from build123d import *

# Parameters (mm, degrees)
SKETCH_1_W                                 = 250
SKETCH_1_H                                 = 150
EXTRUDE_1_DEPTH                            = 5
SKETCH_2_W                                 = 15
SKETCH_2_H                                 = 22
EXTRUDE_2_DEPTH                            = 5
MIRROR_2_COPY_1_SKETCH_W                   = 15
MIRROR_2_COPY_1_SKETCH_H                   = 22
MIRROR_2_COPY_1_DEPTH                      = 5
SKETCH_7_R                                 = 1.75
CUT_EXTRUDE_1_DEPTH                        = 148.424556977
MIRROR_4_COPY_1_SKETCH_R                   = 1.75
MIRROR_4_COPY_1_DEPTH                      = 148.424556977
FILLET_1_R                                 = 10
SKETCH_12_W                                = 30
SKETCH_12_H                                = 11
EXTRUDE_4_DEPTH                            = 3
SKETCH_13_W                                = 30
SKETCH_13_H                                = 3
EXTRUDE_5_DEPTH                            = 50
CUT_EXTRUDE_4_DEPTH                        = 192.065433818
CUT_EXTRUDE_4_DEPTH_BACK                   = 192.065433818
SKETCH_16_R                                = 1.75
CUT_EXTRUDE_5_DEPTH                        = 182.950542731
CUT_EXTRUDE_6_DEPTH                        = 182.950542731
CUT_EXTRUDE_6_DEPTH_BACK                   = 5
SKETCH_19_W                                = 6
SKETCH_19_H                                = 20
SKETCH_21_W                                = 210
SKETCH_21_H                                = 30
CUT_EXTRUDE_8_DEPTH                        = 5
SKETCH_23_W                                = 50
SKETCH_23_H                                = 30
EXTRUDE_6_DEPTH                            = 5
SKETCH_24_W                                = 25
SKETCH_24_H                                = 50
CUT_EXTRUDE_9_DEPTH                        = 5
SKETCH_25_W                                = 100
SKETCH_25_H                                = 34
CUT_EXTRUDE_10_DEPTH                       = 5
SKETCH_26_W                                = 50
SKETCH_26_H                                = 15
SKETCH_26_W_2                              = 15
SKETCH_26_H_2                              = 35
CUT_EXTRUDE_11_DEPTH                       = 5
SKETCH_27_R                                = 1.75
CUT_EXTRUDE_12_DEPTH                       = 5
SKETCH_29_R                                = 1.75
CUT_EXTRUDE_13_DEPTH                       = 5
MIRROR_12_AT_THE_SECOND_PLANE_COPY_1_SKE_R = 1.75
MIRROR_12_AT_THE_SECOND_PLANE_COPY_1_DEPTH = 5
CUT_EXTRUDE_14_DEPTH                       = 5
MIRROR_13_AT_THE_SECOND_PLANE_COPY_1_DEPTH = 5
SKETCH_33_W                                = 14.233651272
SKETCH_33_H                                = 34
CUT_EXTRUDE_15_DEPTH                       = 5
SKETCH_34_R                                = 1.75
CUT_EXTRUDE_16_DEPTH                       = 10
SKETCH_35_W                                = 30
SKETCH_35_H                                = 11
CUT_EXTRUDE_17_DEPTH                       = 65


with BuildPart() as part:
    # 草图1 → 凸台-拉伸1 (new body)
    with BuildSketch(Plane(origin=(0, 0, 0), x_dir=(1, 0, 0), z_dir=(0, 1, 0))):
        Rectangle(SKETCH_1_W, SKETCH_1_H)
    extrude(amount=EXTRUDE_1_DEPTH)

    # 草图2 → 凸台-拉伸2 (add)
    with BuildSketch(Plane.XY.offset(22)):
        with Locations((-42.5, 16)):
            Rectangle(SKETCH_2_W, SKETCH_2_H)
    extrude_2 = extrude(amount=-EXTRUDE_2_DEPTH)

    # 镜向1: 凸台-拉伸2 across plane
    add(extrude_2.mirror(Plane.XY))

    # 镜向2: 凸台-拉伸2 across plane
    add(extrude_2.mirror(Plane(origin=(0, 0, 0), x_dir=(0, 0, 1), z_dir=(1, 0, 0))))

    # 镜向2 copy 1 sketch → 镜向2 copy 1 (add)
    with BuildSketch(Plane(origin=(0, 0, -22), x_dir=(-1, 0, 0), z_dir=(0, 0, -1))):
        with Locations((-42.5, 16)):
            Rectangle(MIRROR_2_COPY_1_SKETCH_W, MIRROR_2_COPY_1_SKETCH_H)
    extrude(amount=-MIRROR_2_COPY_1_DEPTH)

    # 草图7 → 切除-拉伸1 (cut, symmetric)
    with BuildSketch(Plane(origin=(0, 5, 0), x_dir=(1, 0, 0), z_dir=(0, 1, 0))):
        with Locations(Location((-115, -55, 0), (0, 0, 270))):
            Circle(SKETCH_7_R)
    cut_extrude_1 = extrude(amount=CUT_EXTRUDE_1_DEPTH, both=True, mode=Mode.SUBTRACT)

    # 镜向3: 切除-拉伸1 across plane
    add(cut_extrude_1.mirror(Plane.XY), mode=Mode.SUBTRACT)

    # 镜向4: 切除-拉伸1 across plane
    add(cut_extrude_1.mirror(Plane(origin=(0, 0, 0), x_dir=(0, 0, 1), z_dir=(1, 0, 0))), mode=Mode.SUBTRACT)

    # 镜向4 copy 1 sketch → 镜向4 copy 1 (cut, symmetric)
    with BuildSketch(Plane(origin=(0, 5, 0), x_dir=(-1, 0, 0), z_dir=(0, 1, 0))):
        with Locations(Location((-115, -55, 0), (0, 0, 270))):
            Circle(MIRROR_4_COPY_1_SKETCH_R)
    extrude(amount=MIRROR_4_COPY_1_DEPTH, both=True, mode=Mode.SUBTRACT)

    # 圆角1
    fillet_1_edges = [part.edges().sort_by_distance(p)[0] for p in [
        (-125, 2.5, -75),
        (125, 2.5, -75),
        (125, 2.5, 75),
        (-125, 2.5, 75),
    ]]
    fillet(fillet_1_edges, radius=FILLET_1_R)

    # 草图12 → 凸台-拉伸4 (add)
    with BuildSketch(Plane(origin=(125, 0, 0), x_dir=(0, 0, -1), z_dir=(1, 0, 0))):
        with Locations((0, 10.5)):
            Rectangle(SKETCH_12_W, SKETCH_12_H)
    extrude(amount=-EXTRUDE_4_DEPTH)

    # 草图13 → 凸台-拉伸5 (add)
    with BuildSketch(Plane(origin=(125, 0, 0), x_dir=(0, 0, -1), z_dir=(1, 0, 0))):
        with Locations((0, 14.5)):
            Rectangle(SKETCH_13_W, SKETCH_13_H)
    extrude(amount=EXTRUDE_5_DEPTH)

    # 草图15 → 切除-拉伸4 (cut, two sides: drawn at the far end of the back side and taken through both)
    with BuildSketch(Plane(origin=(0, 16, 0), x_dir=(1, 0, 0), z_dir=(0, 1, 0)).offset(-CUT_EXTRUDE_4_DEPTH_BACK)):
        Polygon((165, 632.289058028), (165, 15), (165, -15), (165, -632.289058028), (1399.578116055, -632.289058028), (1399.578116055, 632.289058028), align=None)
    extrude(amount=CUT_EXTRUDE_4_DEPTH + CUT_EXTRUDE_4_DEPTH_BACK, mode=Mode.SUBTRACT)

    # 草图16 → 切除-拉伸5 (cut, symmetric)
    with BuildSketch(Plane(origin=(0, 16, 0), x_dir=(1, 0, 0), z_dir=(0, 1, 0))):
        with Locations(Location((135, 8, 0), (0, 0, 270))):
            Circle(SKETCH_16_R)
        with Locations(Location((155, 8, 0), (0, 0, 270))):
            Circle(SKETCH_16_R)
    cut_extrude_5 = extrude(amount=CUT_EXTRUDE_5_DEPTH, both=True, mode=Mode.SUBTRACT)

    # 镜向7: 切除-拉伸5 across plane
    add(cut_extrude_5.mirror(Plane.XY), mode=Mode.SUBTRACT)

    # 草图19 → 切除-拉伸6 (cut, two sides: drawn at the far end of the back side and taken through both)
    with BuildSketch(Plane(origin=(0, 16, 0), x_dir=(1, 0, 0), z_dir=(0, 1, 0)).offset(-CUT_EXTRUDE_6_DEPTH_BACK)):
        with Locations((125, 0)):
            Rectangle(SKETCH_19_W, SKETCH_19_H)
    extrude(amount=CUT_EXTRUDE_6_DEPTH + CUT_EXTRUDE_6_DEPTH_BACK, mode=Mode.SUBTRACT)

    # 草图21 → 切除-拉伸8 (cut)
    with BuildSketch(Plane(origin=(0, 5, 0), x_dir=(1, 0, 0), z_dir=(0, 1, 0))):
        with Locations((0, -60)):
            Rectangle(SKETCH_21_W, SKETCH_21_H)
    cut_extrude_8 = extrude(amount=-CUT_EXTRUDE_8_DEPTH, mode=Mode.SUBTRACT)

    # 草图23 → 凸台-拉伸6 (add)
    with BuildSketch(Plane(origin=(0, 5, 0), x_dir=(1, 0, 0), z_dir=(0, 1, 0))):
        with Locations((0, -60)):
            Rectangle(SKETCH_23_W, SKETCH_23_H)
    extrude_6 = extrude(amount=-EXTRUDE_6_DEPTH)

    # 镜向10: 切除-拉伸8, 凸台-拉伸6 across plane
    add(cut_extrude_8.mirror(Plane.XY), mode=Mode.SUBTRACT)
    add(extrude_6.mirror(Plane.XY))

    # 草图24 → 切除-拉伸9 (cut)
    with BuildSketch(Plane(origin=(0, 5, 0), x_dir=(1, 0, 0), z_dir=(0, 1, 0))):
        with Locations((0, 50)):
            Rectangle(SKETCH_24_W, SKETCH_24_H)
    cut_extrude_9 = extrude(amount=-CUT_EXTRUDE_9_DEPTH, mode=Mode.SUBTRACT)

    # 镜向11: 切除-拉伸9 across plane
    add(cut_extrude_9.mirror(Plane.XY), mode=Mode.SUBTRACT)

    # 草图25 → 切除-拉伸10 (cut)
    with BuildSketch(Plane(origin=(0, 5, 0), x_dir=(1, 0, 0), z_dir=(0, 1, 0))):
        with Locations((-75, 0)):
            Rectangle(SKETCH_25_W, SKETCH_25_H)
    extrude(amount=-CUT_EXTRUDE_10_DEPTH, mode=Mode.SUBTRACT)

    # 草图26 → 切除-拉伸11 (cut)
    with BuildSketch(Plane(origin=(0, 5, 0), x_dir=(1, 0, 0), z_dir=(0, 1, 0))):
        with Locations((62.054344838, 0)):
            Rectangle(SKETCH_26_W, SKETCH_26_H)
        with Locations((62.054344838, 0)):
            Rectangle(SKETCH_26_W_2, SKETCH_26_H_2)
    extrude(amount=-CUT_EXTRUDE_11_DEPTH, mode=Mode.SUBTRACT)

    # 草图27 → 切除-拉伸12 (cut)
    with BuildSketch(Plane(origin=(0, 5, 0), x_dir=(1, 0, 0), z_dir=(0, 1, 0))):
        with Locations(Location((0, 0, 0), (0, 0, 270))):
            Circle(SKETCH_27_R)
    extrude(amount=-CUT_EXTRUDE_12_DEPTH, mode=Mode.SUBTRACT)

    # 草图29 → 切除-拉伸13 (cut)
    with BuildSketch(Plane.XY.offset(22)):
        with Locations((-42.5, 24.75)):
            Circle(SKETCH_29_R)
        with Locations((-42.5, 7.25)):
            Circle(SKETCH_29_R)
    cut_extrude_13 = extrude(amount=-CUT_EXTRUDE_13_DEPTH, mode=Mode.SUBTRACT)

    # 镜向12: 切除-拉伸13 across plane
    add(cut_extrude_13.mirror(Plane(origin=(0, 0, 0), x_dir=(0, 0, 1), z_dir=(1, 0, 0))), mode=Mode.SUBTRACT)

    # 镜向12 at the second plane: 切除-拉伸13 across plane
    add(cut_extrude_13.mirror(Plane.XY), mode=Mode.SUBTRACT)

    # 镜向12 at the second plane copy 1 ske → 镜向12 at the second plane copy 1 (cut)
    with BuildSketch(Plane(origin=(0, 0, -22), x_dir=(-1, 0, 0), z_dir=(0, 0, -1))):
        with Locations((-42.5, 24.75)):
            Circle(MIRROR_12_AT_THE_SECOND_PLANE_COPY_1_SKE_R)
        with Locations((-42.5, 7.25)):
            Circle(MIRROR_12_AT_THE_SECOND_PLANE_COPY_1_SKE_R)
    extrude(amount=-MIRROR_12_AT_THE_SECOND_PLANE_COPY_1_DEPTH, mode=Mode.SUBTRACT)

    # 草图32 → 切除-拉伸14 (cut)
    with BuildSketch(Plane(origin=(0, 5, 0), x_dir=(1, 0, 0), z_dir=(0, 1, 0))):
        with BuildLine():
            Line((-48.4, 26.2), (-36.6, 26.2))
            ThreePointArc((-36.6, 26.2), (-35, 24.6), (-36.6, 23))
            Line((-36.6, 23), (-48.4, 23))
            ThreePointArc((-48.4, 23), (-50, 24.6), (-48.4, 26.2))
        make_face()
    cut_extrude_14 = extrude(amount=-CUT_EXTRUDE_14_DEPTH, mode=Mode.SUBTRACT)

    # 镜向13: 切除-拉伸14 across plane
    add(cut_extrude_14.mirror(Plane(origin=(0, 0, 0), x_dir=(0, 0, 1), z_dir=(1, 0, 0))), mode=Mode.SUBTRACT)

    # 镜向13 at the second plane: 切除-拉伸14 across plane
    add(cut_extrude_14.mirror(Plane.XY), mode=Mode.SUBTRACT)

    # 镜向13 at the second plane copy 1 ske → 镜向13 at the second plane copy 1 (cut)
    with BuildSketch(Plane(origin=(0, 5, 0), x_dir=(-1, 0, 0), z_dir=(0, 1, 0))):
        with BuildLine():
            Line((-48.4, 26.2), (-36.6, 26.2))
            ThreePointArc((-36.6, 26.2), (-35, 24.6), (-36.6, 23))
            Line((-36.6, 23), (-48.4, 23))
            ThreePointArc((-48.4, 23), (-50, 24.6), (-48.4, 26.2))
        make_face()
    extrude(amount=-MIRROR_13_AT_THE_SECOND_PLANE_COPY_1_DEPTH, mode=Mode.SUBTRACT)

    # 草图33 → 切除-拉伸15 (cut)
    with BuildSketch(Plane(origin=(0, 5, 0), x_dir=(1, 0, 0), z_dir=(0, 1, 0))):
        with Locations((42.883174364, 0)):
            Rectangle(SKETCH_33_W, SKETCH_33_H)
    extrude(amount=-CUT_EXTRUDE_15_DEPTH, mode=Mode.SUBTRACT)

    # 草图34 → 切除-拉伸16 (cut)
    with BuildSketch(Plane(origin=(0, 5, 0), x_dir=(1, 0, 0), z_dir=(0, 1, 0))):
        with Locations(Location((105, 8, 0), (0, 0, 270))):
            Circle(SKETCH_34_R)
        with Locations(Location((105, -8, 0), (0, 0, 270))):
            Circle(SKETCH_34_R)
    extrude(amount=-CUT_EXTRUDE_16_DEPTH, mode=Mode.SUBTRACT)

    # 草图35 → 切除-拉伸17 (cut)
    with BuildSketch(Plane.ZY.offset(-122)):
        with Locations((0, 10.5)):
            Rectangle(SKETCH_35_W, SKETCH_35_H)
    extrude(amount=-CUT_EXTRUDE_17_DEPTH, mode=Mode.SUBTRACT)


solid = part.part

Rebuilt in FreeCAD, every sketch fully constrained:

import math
import FreeCAD as App
import Part
import Sketcher


def edges_at(feature, points):
    """Names of the edges that pass closest to the given points."""
    edges = feature.Shape.Edges
    near = lambda p: min(range(len(edges)), key=lambda i: edges[i].distToShape(Part.Vertex(*p))[0])
    return sorted({f"Edge{near(p) + 1}" for p in points})

doc = App.newDocument("Part")
body = doc.addObject("PartDesign::Body", "Body")

# Sketch on XZ plane
sketch1 = doc.addObject("Sketcher::SketchObject", "Sketch")
body.addObject(sketch1)
sketch1.AttachmentSupport = (doc.XZ_Plane, [""])
sketch1.MapMode = "FlatFace"
sketch1.addGeometry([
    Part.LineSegment(App.Vector(-125, -75, 0), App.Vector(-125, 75, 0)),
    Part.LineSegment(App.Vector(-125, 75, 0), App.Vector(125, 75, 0)),
    Part.LineSegment(App.Vector(125, 75, 0), App.Vector(125, -75, 0)),
    Part.LineSegment(App.Vector(125, -75, 0), App.Vector(-125, -75, 0)),
], False)
sketch1.addConstraint([
    Sketcher.Constraint("Coincident", 0, 2, 1, 1),
    Sketcher.Constraint("Coincident", 1, 2, 2, 1),
    Sketcher.Constraint("Coincident", 2, 2, 3, 1),
    Sketcher.Constraint("Coincident", 3, 2, 0, 1),
    Sketcher.Constraint("Vertical", 0),
    Sketcher.Constraint("Horizontal", 1),
    Sketcher.Constraint("Vertical", 2),
    Sketcher.Constraint("Horizontal", 3),
    Sketcher.Constraint("Symmetric", 0, 2, 2, 2, -1, 1),
    Sketcher.Constraint("DistanceX", 1, 1, 1, 2, 250.0),
    Sketcher.Constraint("DistanceY", 0, 1, 0, 2, 150.0),
])
pad1 = doc.addObject("PartDesign::Pad", "Pad")
body.addObject(pad1)
pad1.Profile = sketch1
pad1.Length = 5
pad1.Reversed = True

# Sketch on XY plane
sketch2 = doc.addObject("Sketcher::SketchObject", "Sketch001")
body.addObject(sketch2)
sketch2.AttachmentSupport = (doc.XY_Plane, [""])
sketch2.MapMode = "FlatFace"
sketch2.AttachmentOffset = App.Placement(App.Vector(0, 0, 22), App.Rotation())
sketch2.addGeometry([
    Part.LineSegment(App.Vector(-50, 27, 0), App.Vector(-50, 5, 0)),
    Part.LineSegment(App.Vector(-50, 5, 0), App.Vector(-35, 5, 0)),
    Part.LineSegment(App.Vector(-35, 5, 0), App.Vector(-35, 27, 0)),
    Part.LineSegment(App.Vector(-35, 27, 0), App.Vector(-50, 27, 0)),
], False)
sketch2.addConstraint([
    Sketcher.Constraint("Coincident", 0, 2, 1, 1),
    Sketcher.Constraint("Coincident", 1, 2, 2, 1),
    Sketcher.Constraint("Coincident", 2, 2, 3, 1),
    Sketcher.Constraint("Coincident", 3, 2, 0, 1),
    Sketcher.Constraint("Vertical", 0),
    Sketcher.Constraint("Horizontal", 1),
    Sketcher.Constraint("Vertical", 2),
    Sketcher.Constraint("Horizontal", 3),
    Sketcher.Constraint("DistanceX", 1, 1, 1, 2, 15.0),
    Sketcher.Constraint("DistanceY", 0, 2, 0, 1, 22.0),
    Sketcher.Constraint("DistanceX", 0, 2, -1, 1, 50.0),
    Sketcher.Constraint("DistanceY", -1, 1, 0, 2, 5.0),
])
pad2 = doc.addObject("PartDesign::Pad", "Pad001")
body.addObject(pad2)
pad2.Profile = sketch2
pad2.Length = 5
pad2.Reversed = True
doc.recompute()

mirrored = doc.addObject("PartDesign::Mirrored", "Mirrored")
body.addObject(mirrored)
mirrored.Originals = [pad2]
mirrored.MirrorPlane = (doc.XY_Plane, [""])
body.Tip = mirrored
doc.recompute()

mirrored2 = doc.addObject("PartDesign::Mirrored", "Mirrored001")
body.addObject(mirrored2)
mirrored2.Originals = [pad2]
mirrored2.MirrorPlane = (doc.YZ_Plane, [""])
body.Tip = mirrored2

# Sketch on XY plane
sketch3 = doc.addObject("Sketcher::SketchObject", "Sketch002")
body.addObject(sketch3)
sketch3.AttachmentSupport = (doc.XY_Plane, [""])
sketch3.MapMode = "FlatFace"
sketch3.AttachmentOffset = App.Placement(App.Vector(0, 0, -22), App.Rotation())
sketch3.addGeometry([
    Part.LineSegment(App.Vector(50, 27, 0), App.Vector(50, 5, 0)),
    Part.LineSegment(App.Vector(50, 5, 0), App.Vector(35, 5, 0)),
    Part.LineSegment(App.Vector(35, 5, 0), App.Vector(35, 27, 0)),
    Part.LineSegment(App.Vector(35, 27, 0), App.Vector(50, 27, 0)),
], False)
sketch3.addConstraint([
    Sketcher.Constraint("Coincident", 0, 2, 1, 1),
    Sketcher.Constraint("Coincident", 1, 2, 2, 1),
    Sketcher.Constraint("Coincident", 2, 2, 3, 1),
    Sketcher.Constraint("Coincident", 3, 2, 0, 1),
    Sketcher.Constraint("Vertical", 0),
    Sketcher.Constraint("Horizontal", 1),
    Sketcher.Constraint("Vertical", 2),
    Sketcher.Constraint("Horizontal", 3),
    Sketcher.Constraint("DistanceX", 1, 2, 1, 1, 15.0),
    Sketcher.Constraint("DistanceY", 0, 2, 0, 1, 22.0),
    Sketcher.Constraint("DistanceX", -1, 1, 0, 2, 50.0),
    Sketcher.Constraint("DistanceY", -1, 1, 0, 2, 5.0),
])
pad3 = doc.addObject("PartDesign::Pad", "Pad002")
body.addObject(pad3)
pad3.Profile = sketch3
pad3.Length = 5

# Sketch on XZ plane
sketch4 = doc.addObject("Sketcher::SketchObject", "Sketch003")
body.addObject(sketch4)
sketch4.AttachmentSupport = (doc.XZ_Plane, [""])
sketch4.MapMode = "FlatFace"
sketch4.AttachmentOffset = App.Placement(App.Vector(0, 0, -5), App.Rotation())
sketch4.addGeometry(Part.Circle(App.Vector(-115, 55, 0), App.Vector(0, 0, 1), 1.8), False)
sketch4.addConstraint([
    Sketcher.Constraint("Diameter", 0, 3.5),
    Sketcher.Constraint("DistanceX", 0, 3, -1, 1, 115.0),
    Sketcher.Constraint("DistanceY", -1, 1, 0, 3, 55.0),
])
pocket1 = doc.addObject("PartDesign::Pocket", "Pocket")
body.addObject(pocket1)
pocket1.Profile = sketch4
pocket1.Length = 296.849114
pocket1.Midplane = True
doc.recompute()

mirrored3 = doc.addObject("PartDesign::Mirrored", "Mirrored002")
body.addObject(mirrored3)
mirrored3.Originals = [pocket1]
mirrored3.MirrorPlane = (doc.XY_Plane, [""])
body.Tip = mirrored3
doc.recompute()

mirrored4 = doc.addObject("PartDesign::Mirrored", "Mirrored003")
body.addObject(mirrored4)
mirrored4.Originals = [pocket1]
mirrored4.MirrorPlane = (doc.YZ_Plane, [""])
body.Tip = mirrored4

# Sketch on XZ plane
sketch5 = doc.addObject("Sketcher::SketchObject", "Sketch004")
body.addObject(sketch5)
sketch5.AttachmentSupport = (doc.XZ_Plane, [""])
sketch5.MapMode = "FlatFace"
sketch5.AttachmentOffset = App.Placement(App.Vector(0, 0, -5), App.Rotation())
sketch5.addGeometry(Part.Circle(App.Vector(115, -55, 0), App.Vector(0, 0, 1), 1.8), False)
sketch5.addConstraint([
    Sketcher.Constraint("Diameter", 0, 3.5),
    Sketcher.Constraint("DistanceX", -1, 1, 0, 3, 115.0),
    Sketcher.Constraint("DistanceY", 0, 3, -1, 1, 55.0),
])
pocket2 = doc.addObject("PartDesign::Pocket", "Pocket001")
body.addObject(pocket2)
pocket2.Profile = sketch5
pocket2.Length = 296.849114
pocket2.Midplane = True
doc.recompute()

fillet = doc.addObject("PartDesign::Fillet", "Fillet")
body.addObject(fillet)
fillet.Base = (pocket2, edges_at(pocket2, [
    (-125, 2.5, -75),
    (125, 2.5, -75),
    (125, 2.5, 75),
    (-125, 2.5, 75),
]))
fillet.Radius = 10

# Sketch on YZ plane
sketch6 = doc.addObject("Sketcher::SketchObject", "Sketch005")
body.addObject(sketch6)
sketch6.AttachmentSupport = (doc.YZ_Plane, [""])
sketch6.MapMode = "FlatFace"
sketch6.AttachmentOffset = App.Placement(App.Vector(0, 0, 125), App.Rotation())
sketch6.addGeometry([
    Part.LineSegment(App.Vector(16, 15, 0), App.Vector(5, 15, 0)),
    Part.LineSegment(App.Vector(5, 15, 0), App.Vector(5, -15, 0)),
    Part.LineSegment(App.Vector(5, -15, 0), App.Vector(16, -15, 0)),
    Part.LineSegment(App.Vector(16, -15, 0), App.Vector(16, 15, 0)),
], False)
sketch6.addConstraint([
    Sketcher.Constraint("Coincident", 0, 2, 1, 1),
    Sketcher.Constraint("Coincident", 1, 2, 2, 1),
    Sketcher.Constraint("Coincident", 2, 2, 3, 1),
    Sketcher.Constraint("Coincident", 3, 2, 0, 1),
    Sketcher.Constraint("Horizontal", 0),
    Sketcher.Constraint("Vertical", 1),
    Sketcher.Constraint("Horizontal", 2),
    Sketcher.Constraint("Vertical", 3),
    Sketcher.Constraint("DistanceX", 0, 2, 0, 1, 11.0),
    Sketcher.Constraint("DistanceY", 1, 2, 1, 1, 30.0),
    Sketcher.Constraint("DistanceX", -1, 1, 0, 2, 5.0),
    Sketcher.Constraint("DistanceY", -1, 1, 0, 2, 15.0),
])
pad4 = doc.addObject("PartDesign::Pad", "Pad003")
body.addObject(pad4)
pad4.Profile = sketch6
pad4.Length = 3
pad4.Reversed = True

# Sketch on YZ plane
sketch7 = doc.addObject("Sketcher::SketchObject", "Sketch006")
body.addObject(sketch7)
sketch7.AttachmentSupport = (doc.YZ_Plane, [""])
sketch7.MapMode = "FlatFace"
sketch7.AttachmentOffset = App.Placement(App.Vector(0, 0, 125), App.Rotation())
sketch7.addGeometry([
    Part.LineSegment(App.Vector(16, 15, 0), App.Vector(13, 15, 0)),
    Part.LineSegment(App.Vector(13, 15, 0), App.Vector(13, -15, 0)),
    Part.LineSegment(App.Vector(13, -15, 0), App.Vector(16, -15, 0)),
    Part.LineSegment(App.Vector(16, -15, 0), App.Vector(16, 15, 0)),
], False)
sketch7.addConstraint([
    Sketcher.Constraint("Coincident", 0, 2, 1, 1),
    Sketcher.Constraint("Coincident", 1, 2, 2, 1),
    Sketcher.Constraint("Coincident", 2, 2, 3, 1),
    Sketcher.Constraint("Coincident", 3, 2, 0, 1),
    Sketcher.Constraint("Horizontal", 0),
    Sketcher.Constraint("Vertical", 1),
    Sketcher.Constraint("Horizontal", 2),
    Sketcher.Constraint("Vertical", 3),
    Sketcher.Constraint("DistanceX", 0, 2, 0, 1, 3.0),
    Sketcher.Constraint("DistanceY", 1, 2, 1, 1, 30.0),
    Sketcher.Constraint("DistanceX", -1, 1, 0, 2, 13.0),
    Sketcher.Constraint("DistanceY", -1, 1, 0, 2, 15.0),
])
pad5 = doc.addObject("PartDesign::Pad", "Pad004")
body.addObject(pad5)
pad5.Profile = sketch7
pad5.Length = 50

# Sketch on XZ plane
sketch8 = doc.addObject("Sketcher::SketchObject", "Sketch007")
body.addObject(sketch8)
sketch8.AttachmentSupport = (doc.XZ_Plane, [""])
sketch8.MapMode = "FlatFace"
sketch8.AttachmentOffset = App.Placement(App.Vector(0, 0, -16), App.Rotation())
sketch8.addGeometry([
    Part.LineSegment(App.Vector(165, -632, 0), App.Vector(165, 632, 0)),
    Part.LineSegment(App.Vector(165, 632, 0), App.Vector(1400, 632, 0)),
    Part.LineSegment(App.Vector(1400, 632, 0), App.Vector(1400, -632, 0)),
    Part.LineSegment(App.Vector(1400, -632, 0), App.Vector(165, -632, 0)),
], False)
sketch8.addConstraint([
    Sketcher.Constraint("Coincident", 0, 2, 1, 1),
    Sketcher.Constraint("Coincident", 1, 2, 2, 1),
    Sketcher.Constraint("Coincident", 2, 2, 3, 1),
    Sketcher.Constraint("Coincident", 3, 2, 0, 1),
    Sketcher.Constraint("Vertical", 0),
    Sketcher.Constraint("Horizontal", 1),
    Sketcher.Constraint("Vertical", 2),
    Sketcher.Constraint("Horizontal", 3),
    Sketcher.Constraint("DistanceX", -1, 1, 0, 2, 165.0),
    Sketcher.Constraint("DistanceX", 1, 1, 1, 2, 1234.578116),
    Sketcher.Constraint("DistanceY", 0, 1, 0, 2, 1264.578116),
    Sketcher.Constraint("DistanceY", -1, 1, 0, 2, 632.289058),
])
pocket3 = doc.addObject("PartDesign::Pocket", "Pocket002")
body.addObject(pocket3)
pocket3.Profile = sketch8
pocket3.Type = "ThroughAll"
pocket3.Midplane = True

# Sketch on XZ plane
sketch9 = doc.addObject("Sketcher::SketchObject", "Sketch008")
body.addObject(sketch9)
sketch9.AttachmentSupport = (doc.XZ_Plane, [""])
sketch9.MapMode = "FlatFace"
sketch9.AttachmentOffset = App.Placement(App.Vector(0, 0, -16), App.Rotation())
sketch9.addGeometry([
    Part.Circle(App.Vector(135, -8, 0), App.Vector(0, 0, 1), 1.8),
    Part.Circle(App.Vector(155, -8, 0), App.Vector(0, 0, 1), 1.8),
], False)
sketch9.addConstraint([
    Sketcher.Constraint("Equal", 0, 1),
    Sketcher.Constraint("Horizontal", 0, 3, 1, 3),
    Sketcher.Constraint("Diameter", 0, 3.5),
    Sketcher.Constraint("DistanceX", -1, 1, 0, 3, 135.0),
    Sketcher.Constraint("DistanceY", 0, 3, -1, 1, 8.0),
    Sketcher.Constraint("DistanceX", -1, 1, 1, 3, 155.0),
])
pocket4 = doc.addObject("PartDesign::Pocket", "Pocket003")
body.addObject(pocket4)
pocket4.Profile = sketch9
pocket4.Length = 365.901085
pocket4.Midplane = True
doc.recompute()

mirrored5 = doc.addObject("PartDesign::Mirrored", "Mirrored004")
body.addObject(mirrored5)
mirrored5.Originals = [pocket4]
mirrored5.MirrorPlane = (doc.XY_Plane, [""])
body.Tip = mirrored5

# Sketch on XZ plane
sketch10 = doc.addObject("Sketcher::SketchObject", "Sketch009")
body.addObject(sketch10)
sketch10.AttachmentSupport = (doc.XZ_Plane, [""])
sketch10.MapMode = "FlatFace"
sketch10.AttachmentOffset = App.Placement(App.Vector(0, 0, -16), App.Rotation())
sketch10.addGeometry([
    Part.LineSegment(App.Vector(122, -10, 0), App.Vector(122, 10, 0)),
    Part.LineSegment(App.Vector(122, 10, 0), App.Vector(128, 10, 0)),
    Part.LineSegment(App.Vector(128, 10, 0), App.Vector(128, -10, 0)),
    Part.LineSegment(App.Vector(128, -10, 0), App.Vector(122, -10, 0)),
], False)
sketch10.addConstraint([
    Sketcher.Constraint("Coincident", 0, 2, 1, 1),
    Sketcher.Constraint("Coincident", 1, 2, 2, 1),
    Sketcher.Constraint("Coincident", 2, 2, 3, 1),
    Sketcher.Constraint("Coincident", 3, 2, 0, 1),
    Sketcher.Constraint("Vertical", 0),
    Sketcher.Constraint("Horizontal", 1),
    Sketcher.Constraint("Vertical", 2),
    Sketcher.Constraint("Horizontal", 3),
    Sketcher.Constraint("DistanceX", 1, 1, 1, 2, 6.0),
    Sketcher.Constraint("DistanceY", 0, 1, 0, 2, 20.0),
    Sketcher.Constraint("DistanceX", -1, 1, 0, 2, 122.0),
    Sketcher.Constraint("DistanceY", -1, 1, 0, 2, 10.0),
])
pocket5 = doc.addObject("PartDesign::Pocket", "Pocket004")
body.addObject(pocket5)
pocket5.Profile = sketch10
pocket5.Type = "TwoLengths"
pocket5.Length = 182.950543
pocket5.Length2 = 5

# Sketch on XZ plane
sketch11 = doc.addObject("Sketcher::SketchObject", "Sketch010")
body.addObject(sketch11)
sketch11.AttachmentSupport = (doc.XZ_Plane, [""])
sketch11.MapMode = "FlatFace"
sketch11.AttachmentOffset = App.Placement(App.Vector(0, 0, -5), App.Rotation())
sketch11.addGeometry([
    Part.LineSegment(App.Vector(-105, 45, 0), App.Vector(-105, 75, 0)),
    Part.LineSegment(App.Vector(-105, 75, 0), App.Vector(105, 75, 0)),
    Part.LineSegment(App.Vector(105, 75, 0), App.Vector(105, 45, 0)),
    Part.LineSegment(App.Vector(105, 45, 0), App.Vector(-105, 45, 0)),
], False)
sketch11.addConstraint([
    Sketcher.Constraint("Coincident", 0, 2, 1, 1),
    Sketcher.Constraint("Coincident", 1, 2, 2, 1),
    Sketcher.Constraint("Coincident", 2, 2, 3, 1),
    Sketcher.Constraint("Coincident", 3, 2, 0, 1),
    Sketcher.Constraint("Vertical", 0),
    Sketcher.Constraint("Horizontal", 1),
    Sketcher.Constraint("Vertical", 2),
    Sketcher.Constraint("Horizontal", 3),
    Sketcher.Constraint("DistanceX", 1, 1, 1, 2, 210.0),
    Sketcher.Constraint("DistanceY", 0, 1, 0, 2, 30.0),
    Sketcher.Constraint("DistanceX", 0, 2, -1, 1, 105.0),
    Sketcher.Constraint("DistanceY", -1, 1, 0, 2, 75.0),
])
pocket6 = doc.addObject("PartDesign::Pocket", "Pocket005")
body.addObject(pocket6)
pocket6.Profile = sketch11
pocket6.Length = 5
pocket6.Reversed = True

# Sketch on XZ plane
sketch12 = doc.addObject("Sketcher::SketchObject", "Sketch011")
body.addObject(sketch12)
sketch12.AttachmentSupport = (doc.XZ_Plane, [""])
sketch12.MapMode = "FlatFace"
sketch12.AttachmentOffset = App.Placement(App.Vector(0, 0, -5), App.Rotation())
sketch12.addGeometry([
    Part.LineSegment(App.Vector(-25, 45, 0), App.Vector(-25, 75, 0)),
    Part.LineSegment(App.Vector(-25, 75, 0), App.Vector(25, 75, 0)),
    Part.LineSegment(App.Vector(25, 75, 0), App.Vector(25, 45, 0)),
    Part.LineSegment(App.Vector(25, 45, 0), App.Vector(-25, 45, 0)),
], False)
sketch12.addConstraint([
    Sketcher.Constraint("Coincident", 0, 2, 1, 1),
    Sketcher.Constraint("Coincident", 1, 2, 2, 1),
    Sketcher.Constraint("Coincident", 2, 2, 3, 1),
    Sketcher.Constraint("Coincident", 3, 2, 0, 1),
    Sketcher.Constraint("Vertical", 0),
    Sketcher.Constraint("Horizontal", 1),
    Sketcher.Constraint("Vertical", 2),
    Sketcher.Constraint("Horizontal", 3),
    Sketcher.Constraint("DistanceX", 1, 1, 1, 2, 50.0),
    Sketcher.Constraint("DistanceY", 0, 1, 0, 2, 30.0),
    Sketcher.Constraint("DistanceX", 0, 2, -1, 1, 25.0),
    Sketcher.Constraint("DistanceY", -1, 1, 0, 2, 75.0),
])
pad6 = doc.addObject("PartDesign::Pad", "Pad005")
body.addObject(pad6)
pad6.Profile = sketch12
pad6.Length = 5
doc.recompute()

mirrored6 = doc.addObject("PartDesign::Mirrored", "Mirrored005")
body.addObject(mirrored6)
mirrored6.Originals = [pocket6, pad6]
mirrored6.MirrorPlane = (doc.XY_Plane, [""])
body.Tip = mirrored6

# Sketch on XZ plane
sketch13 = doc.addObject("Sketcher::SketchObject", "Sketch012")
body.addObject(sketch13)
sketch13.AttachmentSupport = (doc.XZ_Plane, [""])
sketch13.MapMode = "FlatFace"
sketch13.AttachmentOffset = App.Placement(App.Vector(0, 0, -5), App.Rotation())
sketch13.addGeometry([
    Part.LineSegment(App.Vector(-12, -75, 0), App.Vector(-12, -25, 0)),
    Part.LineSegment(App.Vector(-12, -25, 0), App.Vector(12, -25, 0)),
    Part.LineSegment(App.Vector(12, -25, 0), App.Vector(12, -75, 0)),
    Part.LineSegment(App.Vector(12, -75, 0), App.Vector(-12, -75, 0)),
], False)
sketch13.addConstraint([
    Sketcher.Constraint("Coincident", 0, 2, 1, 1),
    Sketcher.Constraint("Coincident", 1, 2, 2, 1),
    Sketcher.Constraint("Coincident", 2, 2, 3, 1),
    Sketcher.Constraint("Coincident", 3, 2, 0, 1),
    Sketcher.Constraint("Vertical", 0),
    Sketcher.Constraint("Horizontal", 1),
    Sketcher.Constraint("Vertical", 2),
    Sketcher.Constraint("Horizontal", 3),
    Sketcher.Constraint("DistanceX", 1, 1, 1, 2, 25.0),
    Sketcher.Constraint("DistanceY", 0, 1, 0, 2, 50.0),
    Sketcher.Constraint("DistanceY", 0, 2, -1, 1, 25.0),
    Sketcher.Constraint("DistanceX", 0, 2, -1, 1, 12.5),
])
pocket7 = doc.addObject("PartDesign::Pocket", "Pocket006")
body.addObject(pocket7)
pocket7.Profile = sketch13
pocket7.Length = 5
pocket7.Reversed = True
doc.recompute()

mirrored7 = doc.addObject("PartDesign::Mirrored", "Mirrored006")
body.addObject(mirrored7)
mirrored7.Originals = [pocket7]
mirrored7.MirrorPlane = (doc.XY_Plane, [""])
body.Tip = mirrored7

# Sketch on XZ plane
sketch14 = doc.addObject("Sketcher::SketchObject", "Sketch013")
body.addObject(sketch14)
sketch14.AttachmentSupport = (doc.XZ_Plane, [""])
sketch14.MapMode = "FlatFace"
sketch14.AttachmentOffset = App.Placement(App.Vector(0, 0, -5), App.Rotation())
sketch14.addGeometry([
    Part.LineSegment(App.Vector(-125, -17, 0), App.Vector(-125, 17, 0)),
    Part.LineSegment(App.Vector(-125, 17, 0), App.Vector(-25, 17, 0)),
    Part.LineSegment(App.Vector(-25, 17, 0), App.Vector(-25, -17, 0)),
    Part.LineSegment(App.Vector(-25, -17, 0), App.Vector(-125, -17, 0)),
], False)
sketch14.addConstraint([
    Sketcher.Constraint("Coincident", 0, 2, 1, 1),
    Sketcher.Constraint("Coincident", 1, 2, 2, 1),
    Sketcher.Constraint("Coincident", 2, 2, 3, 1),
    Sketcher.Constraint("Coincident", 3, 2, 0, 1),
    Sketcher.Constraint("Vertical", 0),
    Sketcher.Constraint("Horizontal", 1),
    Sketcher.Constraint("Vertical", 2),
    Sketcher.Constraint("Horizontal", 3),
    Sketcher.Constraint("DistanceX", 1, 1, 1, 2, 100.0),
    Sketcher.Constraint("DistanceY", 0, 1, 0, 2, 34.0),
    Sketcher.Constraint("DistanceX", 0, 2, -1, 1, 125.0),
    Sketcher.Constraint("DistanceY", -1, 1, 0, 2, 17.0),
])
pocket8 = doc.addObject("PartDesign::Pocket", "Pocket007")
body.addObject(pocket8)
pocket8.Profile = sketch14
pocket8.Length = 5
pocket8.Reversed = True

# Sketch on XZ plane
sketch15 = doc.addObject("Sketcher::SketchObject", "Sketch014")
body.addObject(sketch15)
sketch15.AttachmentSupport = (doc.XZ_Plane, [""])
sketch15.MapMode = "FlatFace"
sketch15.AttachmentOffset = App.Placement(App.Vector(0, 0, -5), App.Rotation())
sketch15.addGeometry([
    Part.LineSegment(App.Vector(37, -8, 0), App.Vector(37, 8, 0)),  # 0
    Part.LineSegment(App.Vector(37, 8, 0), App.Vector(55, 8, 0)),  # 1
    Part.LineSegment(App.Vector(55, 8, 0), App.Vector(55, 18, 0)),  # 2
    Part.LineSegment(App.Vector(55, 18, 0), App.Vector(70, 18, 0)),  # 3
    Part.LineSegment(App.Vector(70, 18, 0), App.Vector(70, 8, 0)),  # 4
    Part.LineSegment(App.Vector(70, 8, 0), App.Vector(87, 8, 0)),  # 5
    Part.LineSegment(App.Vector(87, 8, 0), App.Vector(87, -8, 0)),  # 6
    Part.LineSegment(App.Vector(87, -8, 0), App.Vector(70, -8, 0)),  # 7
    Part.LineSegment(App.Vector(70, -8, 0), App.Vector(70, -18, 0)),  # 8
    Part.LineSegment(App.Vector(70, -18, 0), App.Vector(55, -18, 0)),  # 9
    Part.LineSegment(App.Vector(55, -18, 0), App.Vector(55, -8, 0)),  # 10
    Part.LineSegment(App.Vector(55, -8, 0), App.Vector(37, -8, 0)),  # 11
], False)
sketch15.addConstraint([
    Sketcher.Constraint("Coincident", 0, 2, 1, 1),
    Sketcher.Constraint("Coincident", 1, 2, 2, 1),
    Sketcher.Constraint("Coincident", 2, 2, 3, 1),
    Sketcher.Constraint("Coincident", 3, 2, 4, 1),
    Sketcher.Constraint("Coincident", 4, 2, 5, 1),
    Sketcher.Constraint("Coincident", 5, 2, 6, 1),
    Sketcher.Constraint("Coincident", 6, 2, 7, 1),
    Sketcher.Constraint("Coincident", 7, 2, 8, 1),
    Sketcher.Constraint("Coincident", 8, 2, 9, 1),
    Sketcher.Constraint("Coincident", 9, 2, 10, 1),
    Sketcher.Constraint("Coincident", 10, 2, 11, 1),
    Sketcher.Constraint("Coincident", 11, 2, 0, 1),
    Sketcher.Constraint("Vertical", 0),
    Sketcher.Constraint("Horizontal", 1),
    Sketcher.Constraint("Vertical", 2),
    Sketcher.Constraint("Horizontal", 3),
    Sketcher.Constraint("Vertical", 4),
    Sketcher.Constraint("Horizontal", 5),
    Sketcher.Constraint("Vertical", 6),
    Sketcher.Constraint("Horizontal", 7),
    Sketcher.Constraint("Vertical", 8),
    Sketcher.Constraint("Horizontal", 9),
    Sketcher.Constraint("Vertical", 10),
    Sketcher.Constraint("Horizontal", 11),
    Sketcher.Constraint("Symmetric", 4, 2, 7, 2, -1),
    Sketcher.Constraint("Symmetric", 2, 2, 9, 2, -1),
    Sketcher.Constraint("Horizontal", 1, 2, 4, 2),
    Sketcher.Constraint("Horizontal", 7, 2, 10, 2),
    Sketcher.Constraint("Equal", 1, 5),
    Sketcher.Constraint("Equal", 9, 0),
    Sketcher.Constraint("DistanceX", 3, 1, 3, 2, 15.0),
    Sketcher.Constraint("DistanceY", 2, 1, 2, 2, 10.0),
    Sketcher.Constraint("DistanceX", 1, 1, 1, 2, 17.5),
    Sketcher.Constraint("DistanceX", -1, 1, 0, 2, 37.054345),
])
pocket9 = doc.addObject("PartDesign::Pocket", "Pocket008")
body.addObject(pocket9)
pocket9.Profile = sketch15
pocket9.Length = 5
pocket9.Reversed = True

# Sketch on XZ plane
sketch16 = doc.addObject("Sketcher::SketchObject", "Sketch015")
body.addObject(sketch16)
sketch16.AttachmentSupport = (doc.XZ_Plane, [""])
sketch16.MapMode = "FlatFace"
sketch16.AttachmentOffset = App.Placement(App.Vector(0, 0, -5), App.Rotation())
sketch16.addGeometry(Part.Circle(App.Vector(0, 0, 0), App.Vector(0, 0, 1), 1.8), False)
sketch16.addConstraint([
    Sketcher.Constraint("Coincident", 0, 3, -1, 1),
    Sketcher.Constraint("Diameter", 0, 3.5),
])
pocket10 = doc.addObject("PartDesign::Pocket", "Pocket009")
body.addObject(pocket10)
pocket10.Profile = sketch16
pocket10.Length = 5
pocket10.Reversed = True

# Sketch on XY plane
sketch17 = doc.addObject("Sketcher::SketchObject", "Sketch016")
body.addObject(sketch17)
sketch17.AttachmentSupport = (doc.XY_Plane, [""])
sketch17.MapMode = "FlatFace"
sketch17.AttachmentOffset = App.Placement(App.Vector(0, 0, 22), App.Rotation())
sketch17.addGeometry([
    Part.Circle(App.Vector(-42.5, 24.8, 0), App.Vector(0, 0, 1), 1.8),
    Part.Circle(App.Vector(-42.5, 7.2, 0), App.Vector(0, 0, 1), 1.8),
], False)
sketch17.addConstraint([
    Sketcher.Constraint("Equal", 0, 1),
    Sketcher.Constraint("Vertical", 0, 3, 1, 3),
    Sketcher.Constraint("Diameter", 0, 3.5),
    Sketcher.Constraint("DistanceX", 0, 3, -1, 1, 42.5),
    Sketcher.Constraint("DistanceY", 1, 3, 0, 3, 17.5),
    Sketcher.Constraint("DistanceY", -1, 1, 0, 3, 24.75),
])
pocket11 = doc.addObject("PartDesign::Pocket", "Pocket010")
body.addObject(pocket11)
pocket11.Profile = sketch17
pocket11.Length = 5
doc.recompute()

mirrored8 = doc.addObject("PartDesign::Mirrored", "Mirrored007")
body.addObject(mirrored8)
mirrored8.Originals = [pocket11]
mirrored8.MirrorPlane = (doc.YZ_Plane, [""])
body.Tip = mirrored8
doc.recompute()

mirrored9 = doc.addObject("PartDesign::Mirrored", "Mirrored008")
body.addObject(mirrored9)
mirrored9.Originals = [pocket11]
mirrored9.MirrorPlane = (doc.XY_Plane, [""])
body.Tip = mirrored9

# Sketch on XY plane
sketch18 = doc.addObject("Sketcher::SketchObject", "Sketch017")
body.addObject(sketch18)
sketch18.AttachmentSupport = (doc.XY_Plane, [""])
sketch18.MapMode = "FlatFace"
sketch18.AttachmentOffset = App.Placement(App.Vector(0, 0, -22), App.Rotation())
sketch18.addGeometry([
    Part.Circle(App.Vector(42.5, 24.8, 0), App.Vector(0, 0, 1), 1.8),
    Part.Circle(App.Vector(42.5, 7.2, 0), App.Vector(0, 0, 1), 1.8),
], False)
sketch18.addConstraint([
    Sketcher.Constraint("Equal", 0, 1),
    Sketcher.Constraint("Vertical", 0, 3, 1, 3),
    Sketcher.Constraint("Diameter", 0, 3.5),
    Sketcher.Constraint("DistanceX", -1, 1, 0, 3, 42.5),
    Sketcher.Constraint("DistanceY", 1, 3, 0, 3, 17.5),
    Sketcher.Constraint("DistanceY", -1, 1, 0, 3, 24.75),
])
pocket12 = doc.addObject("PartDesign::Pocket", "Pocket011")
body.addObject(pocket12)
pocket12.Profile = sketch18
pocket12.Length = 5
pocket12.Reversed = True

# Sketch on XZ plane
sketch19 = doc.addObject("Sketcher::SketchObject", "Sketch018")
body.addObject(sketch19)
sketch19.AttachmentSupport = (doc.XZ_Plane, [""])
sketch19.MapMode = "FlatFace"
sketch19.AttachmentOffset = App.Placement(App.Vector(0, 0, -5), App.Rotation())
sketch19.addGeometry([
    Part.LineSegment(App.Vector(-36.6, -26.2, 0), App.Vector(-48.4, -26.2, 0)),
    Part.ArcOfCircle(Part.Circle(App.Vector(-48.4, -24.6, 0), App.Vector(0, 0, 1), 1.6), math.radians(90), math.radians(270)),
    Part.LineSegment(App.Vector(-48.4, -23, 0), App.Vector(-36.6, -23, 0)),
    Part.ArcOfCircle(Part.Circle(App.Vector(-36.6, -24.6, 0), App.Vector(0, 0, 1), 1.6), math.radians(-90), math.radians(90)),
], False)
sketch19.addConstraint([
    Sketcher.Constraint("Tangent", 0, 2, 1, 2),
    Sketcher.Constraint("Tangent", 1, 1, 2, 1),
    Sketcher.Constraint("Tangent", 2, 2, 3, 2),
    Sketcher.Constraint("Tangent", 3, 1, 0, 1),
    Sketcher.Constraint("Horizontal", 0),
    Sketcher.Constraint("Horizontal", 2),
    Sketcher.Constraint("Radius", 1, 1.6),
    Sketcher.Constraint("DistanceX", 0, 2, 0, 1, 11.8),
    Sketcher.Constraint("DistanceY", 1, 1, -1, 1, 23.0),
    Sketcher.Constraint("DistanceX", 1, 3, -1, 1, 48.4),
])
pocket13 = doc.addObject("PartDesign::Pocket", "Pocket012")
body.addObject(pocket13)
pocket13.Profile = sketch19
pocket13.Length = 5
pocket13.Reversed = True
doc.recompute()

mirrored10 = doc.addObject("PartDesign::Mirrored", "Mirrored009")
body.addObject(mirrored10)
mirrored10.Originals = [pocket13]
mirrored10.MirrorPlane = (doc.YZ_Plane, [""])
body.Tip = mirrored10
doc.recompute()

mirrored11 = doc.addObject("PartDesign::Mirrored", "Mirrored010")
body.addObject(mirrored11)
mirrored11.Originals = [pocket13]
mirrored11.MirrorPlane = (doc.XY_Plane, [""])
body.Tip = mirrored11

# Sketch on XZ plane
sketch20 = doc.addObject("Sketcher::SketchObject", "Sketch019")
body.addObject(sketch20)
sketch20.AttachmentSupport = (doc.XZ_Plane, [""])
sketch20.MapMode = "FlatFace"
sketch20.AttachmentOffset = App.Placement(App.Vector(0, 0, -5), App.Rotation())
sketch20.addGeometry([
    Part.LineSegment(App.Vector(36.6, 26.2, 0), App.Vector(48.4, 26.2, 0)),
    Part.ArcOfCircle(Part.Circle(App.Vector(48.4, 24.6, 0), App.Vector(0, 0, 1), 1.6), math.radians(-90), math.radians(90)),
    Part.LineSegment(App.Vector(48.4, 23, 0), App.Vector(36.6, 23, 0)),
    Part.ArcOfCircle(Part.Circle(App.Vector(36.6, 24.6, 0), App.Vector(0, 0, 1), 1.6), math.radians(90), math.radians(270)),
], False)
sketch20.addConstraint([
    Sketcher.Constraint("Tangent", 0, 2, 1, 2),
    Sketcher.Constraint("Tangent", 1, 1, 2, 1),
    Sketcher.Constraint("Tangent", 2, 2, 3, 2),
    Sketcher.Constraint("Tangent", 3, 1, 0, 1),
    Sketcher.Constraint("Horizontal", 0),
    Sketcher.Constraint("Horizontal", 2),
    Sketcher.Constraint("Radius", 1, 1.6),
    Sketcher.Constraint("DistanceX", 0, 1, 0, 2, 11.8),
    Sketcher.Constraint("DistanceY", -1, 1, 1, 1, 23.0),
    Sketcher.Constraint("DistanceX", -1, 1, 1, 3, 48.4),
])
pocket14 = doc.addObject("PartDesign::Pocket", "Pocket013")
body.addObject(pocket14)
pocket14.Profile = sketch20
pocket14.Length = 5
pocket14.Reversed = True

# Sketch on XZ plane
sketch21 = doc.addObject("Sketcher::SketchObject", "Sketch020")
body.addObject(sketch21)
sketch21.AttachmentSupport = (doc.XZ_Plane, [""])
sketch21.MapMode = "FlatFace"
sketch21.AttachmentOffset = App.Placement(App.Vector(0, 0, -5), App.Rotation())
sketch21.addGeometry([
    Part.LineSegment(App.Vector(36, -17, 0), App.Vector(36, 17, 0)),
    Part.LineSegment(App.Vector(36, 17, 0), App.Vector(50, 17, 0)),
    Part.LineSegment(App.Vector(50, 17, 0), App.Vector(50, -17, 0)),
    Part.LineSegment(App.Vector(50, -17, 0), App.Vector(36, -17, 0)),
], False)
sketch21.addConstraint([
    Sketcher.Constraint("Coincident", 0, 2, 1, 1),
    Sketcher.Constraint("Coincident", 1, 2, 2, 1),
    Sketcher.Constraint("Coincident", 2, 2, 3, 1),
    Sketcher.Constraint("Coincident", 3, 2, 0, 1),
    Sketcher.Constraint("Vertical", 0),
    Sketcher.Constraint("Horizontal", 1),
    Sketcher.Constraint("Vertical", 2),
    Sketcher.Constraint("Horizontal", 3),
    Sketcher.Constraint("DistanceY", 0, 1, 0, 2, 34.0),
    Sketcher.Constraint("DistanceY", -1, 1, 0, 2, 17.0),
    Sketcher.Constraint("DistanceX", -1, 1, 1, 2, 50.0),
    Sketcher.Constraint("DistanceX", 1, 1, 1, 2, 14.233651),
])
pocket15 = doc.addObject("PartDesign::Pocket", "Pocket014")
body.addObject(pocket15)
pocket15.Profile = sketch21
pocket15.Length = 5
pocket15.Reversed = True

# Sketch on XZ plane
sketch22 = doc.addObject("Sketcher::SketchObject", "Sketch021")
body.addObject(sketch22)
sketch22.AttachmentSupport = (doc.XZ_Plane, [""])
sketch22.MapMode = "FlatFace"
sketch22.AttachmentOffset = App.Placement(App.Vector(0, 0, -5), App.Rotation())
sketch22.addGeometry([
    Part.Circle(App.Vector(105, -8, 0), App.Vector(0, 0, 1), 1.8),
    Part.Circle(App.Vector(105, 8, 0), App.Vector(0, 0, 1), 1.8),
], False)
sketch22.addConstraint([
    Sketcher.Constraint("Equal", 0, 1),
    Sketcher.Constraint("Symmetric", 0, 3, 1, 3, -1),
    Sketcher.Constraint("Diameter", 0, 3.5),
    Sketcher.Constraint("DistanceX", -1, 1, 0, 3, 105.0),
    Sketcher.Constraint("DistanceY", 0, 3, -1, 1, 8.0),
])
pocket16 = doc.addObject("PartDesign::Pocket", "Pocket015")
body.addObject(pocket16)
pocket16.Profile = sketch22
pocket16.Length = 10
pocket16.Reversed = True

# Sketch on YZ plane
sketch23 = doc.addObject("Sketcher::SketchObject", "Sketch022")
body.addObject(sketch23)
sketch23.AttachmentSupport = (doc.YZ_Plane, [""])
sketch23.MapMode = "FlatFace"
sketch23.AttachmentOffset = App.Placement(App.Vector(0, 0, 122), App.Rotation())
sketch23.addGeometry([
    Part.LineSegment(App.Vector(16, -15, 0), App.Vector(5, -15, 0)),
    Part.LineSegment(App.Vector(5, -15, 0), App.Vector(5, 15, 0)),
    Part.LineSegment(App.Vector(5, 15, 0), App.Vector(16, 15, 0)),
    Part.LineSegment(App.Vector(16, 15, 0), App.Vector(16, -15, 0)),
], False)
sketch23.addConstraint([
    Sketcher.Constraint("Coincident", 0, 2, 1, 1),
    Sketcher.Constraint("Coincident", 1, 2, 2, 1),
    Sketcher.Constraint("Coincident", 2, 2, 3, 1),
    Sketcher.Constraint("Coincident", 3, 2, 0, 1),
    Sketcher.Constraint("Horizontal", 0),
    Sketcher.Constraint("Vertical", 1),
    Sketcher.Constraint("Horizontal", 2),
    Sketcher.Constraint("Vertical", 3),
    Sketcher.Constraint("DistanceX", 0, 2, 0, 1, 11.0),
    Sketcher.Constraint("DistanceY", 1, 1, 1, 2, 30.0),
    Sketcher.Constraint("DistanceX", -1, 1, 0, 2, 5.0),
    Sketcher.Constraint("DistanceY", 0, 2, -1, 1, 15.0),
])
pocket17 = doc.addObject("PartDesign::Pocket", "Pocket016")
body.addObject(pocket17)
pocket17.Profile = sketch23
pocket17.Length = 65
pocket17.Reversed = True

doc.recompute()
